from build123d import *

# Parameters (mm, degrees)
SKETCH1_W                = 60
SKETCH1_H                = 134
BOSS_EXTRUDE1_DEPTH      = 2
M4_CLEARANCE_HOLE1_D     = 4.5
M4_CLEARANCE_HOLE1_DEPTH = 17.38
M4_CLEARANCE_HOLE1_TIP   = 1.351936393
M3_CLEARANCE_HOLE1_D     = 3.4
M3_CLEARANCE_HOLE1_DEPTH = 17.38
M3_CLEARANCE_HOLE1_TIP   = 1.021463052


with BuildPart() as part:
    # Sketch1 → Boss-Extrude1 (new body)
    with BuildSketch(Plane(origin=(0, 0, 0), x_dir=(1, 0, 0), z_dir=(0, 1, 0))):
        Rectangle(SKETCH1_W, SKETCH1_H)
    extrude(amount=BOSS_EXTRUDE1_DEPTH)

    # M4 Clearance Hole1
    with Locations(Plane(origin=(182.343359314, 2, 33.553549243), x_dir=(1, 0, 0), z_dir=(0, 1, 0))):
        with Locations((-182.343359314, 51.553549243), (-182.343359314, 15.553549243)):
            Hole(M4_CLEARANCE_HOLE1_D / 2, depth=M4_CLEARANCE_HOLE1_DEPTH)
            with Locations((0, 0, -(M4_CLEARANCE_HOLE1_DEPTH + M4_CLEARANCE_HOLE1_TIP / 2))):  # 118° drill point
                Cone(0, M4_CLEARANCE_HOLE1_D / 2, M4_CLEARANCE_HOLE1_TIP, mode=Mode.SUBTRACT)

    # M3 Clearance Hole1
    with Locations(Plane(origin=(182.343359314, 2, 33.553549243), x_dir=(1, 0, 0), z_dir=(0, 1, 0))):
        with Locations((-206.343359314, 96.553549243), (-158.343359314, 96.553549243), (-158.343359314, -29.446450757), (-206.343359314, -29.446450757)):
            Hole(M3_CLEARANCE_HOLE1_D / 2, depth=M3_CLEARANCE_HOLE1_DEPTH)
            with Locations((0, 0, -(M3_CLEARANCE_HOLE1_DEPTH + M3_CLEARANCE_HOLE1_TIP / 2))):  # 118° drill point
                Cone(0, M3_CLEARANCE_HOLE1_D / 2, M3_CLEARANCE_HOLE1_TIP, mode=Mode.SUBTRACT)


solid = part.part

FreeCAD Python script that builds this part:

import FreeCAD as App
import Part
import Sketcher
from FreeCAD import Vector
Q = App.Units.Quantity

doc = App.newDocument("Part")
body = doc.addObject("PartDesign::Body", "Body")

sketch1 = doc.addObject("Sketcher::SketchObject", "Sketch")
body.addObject(sketch1)
sketch1.AttachmentSupport = (doc.XZ_Plane, [""])
sketch1.MapMode = "FlatFace"
sketch1.addGeometry(Part.LineSegment(Vector(-30, -67, 0), Vector(-30, 67, 0)), False)
sketch1.addGeometry(Part.LineSegment(Vector(-30, 67, 0), Vector(30, 67, 0)), False)
sketch1.addGeometry(Part.LineSegment(Vector(30, 67, 0), Vector(30, -67, 0)), False)
sketch1.addGeometry(Part.LineSegment(Vector(30, -67, 0), Vector(-30, -67, 0)), False)
sketch1.addConstraint(Sketcher.Constraint("Coincident", 0, 2, 1, 1))
sketch1.addConstraint(Sketcher.Constraint("Coincident", 1, 2, 2, 1))
sketch1.addConstraint(Sketcher.Constraint("Coincident", 2, 2, 3, 1))
sketch1.addConstraint(Sketcher.Constraint("Coincident", 3, 2, 0, 1))
sketch1.addConstraint(Sketcher.Constraint("Vertical", 0))
sketch1.addConstraint(Sketcher.Constraint("Horizontal", 1))
sketch1.addConstraint(Sketcher.Constraint("Vertical", 2))
sketch1.addConstraint(Sketcher.Constraint("Horizontal", 3))
sketch1.addConstraint(Sketcher.Constraint("Symmetric", 0, 2, 2, 2, -1, 1))
sketch1.addConstraint(Sketcher.Constraint("DistanceX", 1, 1, 1, 2, Q("60 mm")))
sketch1.addConstraint(Sketcher.Constraint("DistanceY", 0, 1, 0, 2, Q("134 mm")))
pad1 = doc.addObject("PartDesign::Pad", "Pad")
body.addObject(pad1)
pad1.Profile = sketch1
pad1.Length = 2
pad1.Reversed = True

sketch2 = doc.addObject("Sketcher::SketchObject", "Sketch001")
body.addObject(sketch2)
sketch2.AttachmentSupport = (doc.XZ_Plane, [""])
sketch2.MapMode = "FlatFace"
sketch2.AttachmentOffset = App.Placement(Vector(0, 0, -2), App.Rotation())
sketch2.addGeometry(Part.Circle(Vector(0, -18, 0), Vector(0, 0, 1), 2.2), False)
sketch2.addGeometry(Part.Circle(Vector(0, 18, 0), Vector(0, 0, 1), 2.2), False)
sketch2.addConstraint(Sketcher.Constraint("Equal", 0, 1))
sketch2.addConstraint(Sketcher.Constraint("Symmetric", 0, 3, 1, 3, -1, 1))
sketch2.addConstraint(Sketcher.Constraint("PointOnObject", 0, 3, -2))
sketch2.addConstraint(Sketcher.Constraint("Diameter", 0, Q("4.5 mm")))
sketch2.addConstraint(Sketcher.Constraint("DistanceY", 0, 3, -1, 1, Q("18 mm")))
doc.recompute()
hole = doc.addObject("PartDesign::Hole", "Hole")
body.addObject(hole)
hole.Profile = sketch2
hole.ThreadType = "None"
hole.Diameter = 4.5
hole.DepthType = "Dimension"
hole.Depth = 17.38
hole.DrillPoint = "Angled"
hole.DrillPointAngle = 118
hole.Reversed = True

sketch3 = doc.addObject("Sketcher::SketchObject", "Sketch002")
body.addObject(sketch3)
sketch3.AttachmentSupport = (doc.XZ_Plane, [""])
sketch3.MapMode = "FlatFace"
sketch3.AttachmentOffset = App.Placement(Vector(0, 0, -2), App.Rotation())
sketch3.addGeometry(Part.Circle(Vector(-24, -63, 0), Vector(0, 0, 1), 1.7), False)
sketch3.addGeometry(Part.Circle(Vector(24, -63, 0), Vector(0, 0, 1), 1.7), False)
sketch3.addGeometry(Part.Circle(Vector(24, 63, 0), Vector(0, 0, 1), 1.7), False)
sketch3.addGeometry(Part.Circle(Vector(-24, 63, 0), Vector(0, 0, 1), 1.7), False)
sketch3.addConstraint(Sketcher.Constraint("Equal", 0, 1))
sketch3.addConstraint(Sketcher.Constraint("Equal", 1, 2))
sketch3.addConstraint(Sketcher.Constraint("Equal", 2, 3))
sketch3.addConstraint(Sketcher.Constraint("Symmetric", 0, 3, 2, 3, -1, 1))
sketch3.addConstraint(Sketcher.Constraint("Symmetric", 1, 3, 3, 3, -1, 1))
sketch3.addConstraint(Sketcher.Constraint("Symmetric", 0, 3, 1, 3, -2))
sketch3.addConstraint(Sketcher.Constraint("Diameter", 0, Q("3.4 mm")))
sketch3.addConstraint(Sketcher.Constraint("DistanceX", 0, 3, -1, 1, Q("24 mm")))
sketch3.addConstraint(Sketcher.Constraint("DistanceY", 0, 3, -1, 1, Q("63 mm")))
doc.recompute()
hole2 = doc.addObject("PartDesign::Hole", "Hole001")
body.addObject(hole2)
hole2.Profile = sketch3
hole2.ThreadType = "None"
hole2.Diameter = 3.4
hole2.DepthType = "Dimension"
hole2.Depth = 17.38
hole2.DrillPoint = "Angled"
hole2.DrillPointAngle = 118
hole2.Reversed = True

doc.recompute()
